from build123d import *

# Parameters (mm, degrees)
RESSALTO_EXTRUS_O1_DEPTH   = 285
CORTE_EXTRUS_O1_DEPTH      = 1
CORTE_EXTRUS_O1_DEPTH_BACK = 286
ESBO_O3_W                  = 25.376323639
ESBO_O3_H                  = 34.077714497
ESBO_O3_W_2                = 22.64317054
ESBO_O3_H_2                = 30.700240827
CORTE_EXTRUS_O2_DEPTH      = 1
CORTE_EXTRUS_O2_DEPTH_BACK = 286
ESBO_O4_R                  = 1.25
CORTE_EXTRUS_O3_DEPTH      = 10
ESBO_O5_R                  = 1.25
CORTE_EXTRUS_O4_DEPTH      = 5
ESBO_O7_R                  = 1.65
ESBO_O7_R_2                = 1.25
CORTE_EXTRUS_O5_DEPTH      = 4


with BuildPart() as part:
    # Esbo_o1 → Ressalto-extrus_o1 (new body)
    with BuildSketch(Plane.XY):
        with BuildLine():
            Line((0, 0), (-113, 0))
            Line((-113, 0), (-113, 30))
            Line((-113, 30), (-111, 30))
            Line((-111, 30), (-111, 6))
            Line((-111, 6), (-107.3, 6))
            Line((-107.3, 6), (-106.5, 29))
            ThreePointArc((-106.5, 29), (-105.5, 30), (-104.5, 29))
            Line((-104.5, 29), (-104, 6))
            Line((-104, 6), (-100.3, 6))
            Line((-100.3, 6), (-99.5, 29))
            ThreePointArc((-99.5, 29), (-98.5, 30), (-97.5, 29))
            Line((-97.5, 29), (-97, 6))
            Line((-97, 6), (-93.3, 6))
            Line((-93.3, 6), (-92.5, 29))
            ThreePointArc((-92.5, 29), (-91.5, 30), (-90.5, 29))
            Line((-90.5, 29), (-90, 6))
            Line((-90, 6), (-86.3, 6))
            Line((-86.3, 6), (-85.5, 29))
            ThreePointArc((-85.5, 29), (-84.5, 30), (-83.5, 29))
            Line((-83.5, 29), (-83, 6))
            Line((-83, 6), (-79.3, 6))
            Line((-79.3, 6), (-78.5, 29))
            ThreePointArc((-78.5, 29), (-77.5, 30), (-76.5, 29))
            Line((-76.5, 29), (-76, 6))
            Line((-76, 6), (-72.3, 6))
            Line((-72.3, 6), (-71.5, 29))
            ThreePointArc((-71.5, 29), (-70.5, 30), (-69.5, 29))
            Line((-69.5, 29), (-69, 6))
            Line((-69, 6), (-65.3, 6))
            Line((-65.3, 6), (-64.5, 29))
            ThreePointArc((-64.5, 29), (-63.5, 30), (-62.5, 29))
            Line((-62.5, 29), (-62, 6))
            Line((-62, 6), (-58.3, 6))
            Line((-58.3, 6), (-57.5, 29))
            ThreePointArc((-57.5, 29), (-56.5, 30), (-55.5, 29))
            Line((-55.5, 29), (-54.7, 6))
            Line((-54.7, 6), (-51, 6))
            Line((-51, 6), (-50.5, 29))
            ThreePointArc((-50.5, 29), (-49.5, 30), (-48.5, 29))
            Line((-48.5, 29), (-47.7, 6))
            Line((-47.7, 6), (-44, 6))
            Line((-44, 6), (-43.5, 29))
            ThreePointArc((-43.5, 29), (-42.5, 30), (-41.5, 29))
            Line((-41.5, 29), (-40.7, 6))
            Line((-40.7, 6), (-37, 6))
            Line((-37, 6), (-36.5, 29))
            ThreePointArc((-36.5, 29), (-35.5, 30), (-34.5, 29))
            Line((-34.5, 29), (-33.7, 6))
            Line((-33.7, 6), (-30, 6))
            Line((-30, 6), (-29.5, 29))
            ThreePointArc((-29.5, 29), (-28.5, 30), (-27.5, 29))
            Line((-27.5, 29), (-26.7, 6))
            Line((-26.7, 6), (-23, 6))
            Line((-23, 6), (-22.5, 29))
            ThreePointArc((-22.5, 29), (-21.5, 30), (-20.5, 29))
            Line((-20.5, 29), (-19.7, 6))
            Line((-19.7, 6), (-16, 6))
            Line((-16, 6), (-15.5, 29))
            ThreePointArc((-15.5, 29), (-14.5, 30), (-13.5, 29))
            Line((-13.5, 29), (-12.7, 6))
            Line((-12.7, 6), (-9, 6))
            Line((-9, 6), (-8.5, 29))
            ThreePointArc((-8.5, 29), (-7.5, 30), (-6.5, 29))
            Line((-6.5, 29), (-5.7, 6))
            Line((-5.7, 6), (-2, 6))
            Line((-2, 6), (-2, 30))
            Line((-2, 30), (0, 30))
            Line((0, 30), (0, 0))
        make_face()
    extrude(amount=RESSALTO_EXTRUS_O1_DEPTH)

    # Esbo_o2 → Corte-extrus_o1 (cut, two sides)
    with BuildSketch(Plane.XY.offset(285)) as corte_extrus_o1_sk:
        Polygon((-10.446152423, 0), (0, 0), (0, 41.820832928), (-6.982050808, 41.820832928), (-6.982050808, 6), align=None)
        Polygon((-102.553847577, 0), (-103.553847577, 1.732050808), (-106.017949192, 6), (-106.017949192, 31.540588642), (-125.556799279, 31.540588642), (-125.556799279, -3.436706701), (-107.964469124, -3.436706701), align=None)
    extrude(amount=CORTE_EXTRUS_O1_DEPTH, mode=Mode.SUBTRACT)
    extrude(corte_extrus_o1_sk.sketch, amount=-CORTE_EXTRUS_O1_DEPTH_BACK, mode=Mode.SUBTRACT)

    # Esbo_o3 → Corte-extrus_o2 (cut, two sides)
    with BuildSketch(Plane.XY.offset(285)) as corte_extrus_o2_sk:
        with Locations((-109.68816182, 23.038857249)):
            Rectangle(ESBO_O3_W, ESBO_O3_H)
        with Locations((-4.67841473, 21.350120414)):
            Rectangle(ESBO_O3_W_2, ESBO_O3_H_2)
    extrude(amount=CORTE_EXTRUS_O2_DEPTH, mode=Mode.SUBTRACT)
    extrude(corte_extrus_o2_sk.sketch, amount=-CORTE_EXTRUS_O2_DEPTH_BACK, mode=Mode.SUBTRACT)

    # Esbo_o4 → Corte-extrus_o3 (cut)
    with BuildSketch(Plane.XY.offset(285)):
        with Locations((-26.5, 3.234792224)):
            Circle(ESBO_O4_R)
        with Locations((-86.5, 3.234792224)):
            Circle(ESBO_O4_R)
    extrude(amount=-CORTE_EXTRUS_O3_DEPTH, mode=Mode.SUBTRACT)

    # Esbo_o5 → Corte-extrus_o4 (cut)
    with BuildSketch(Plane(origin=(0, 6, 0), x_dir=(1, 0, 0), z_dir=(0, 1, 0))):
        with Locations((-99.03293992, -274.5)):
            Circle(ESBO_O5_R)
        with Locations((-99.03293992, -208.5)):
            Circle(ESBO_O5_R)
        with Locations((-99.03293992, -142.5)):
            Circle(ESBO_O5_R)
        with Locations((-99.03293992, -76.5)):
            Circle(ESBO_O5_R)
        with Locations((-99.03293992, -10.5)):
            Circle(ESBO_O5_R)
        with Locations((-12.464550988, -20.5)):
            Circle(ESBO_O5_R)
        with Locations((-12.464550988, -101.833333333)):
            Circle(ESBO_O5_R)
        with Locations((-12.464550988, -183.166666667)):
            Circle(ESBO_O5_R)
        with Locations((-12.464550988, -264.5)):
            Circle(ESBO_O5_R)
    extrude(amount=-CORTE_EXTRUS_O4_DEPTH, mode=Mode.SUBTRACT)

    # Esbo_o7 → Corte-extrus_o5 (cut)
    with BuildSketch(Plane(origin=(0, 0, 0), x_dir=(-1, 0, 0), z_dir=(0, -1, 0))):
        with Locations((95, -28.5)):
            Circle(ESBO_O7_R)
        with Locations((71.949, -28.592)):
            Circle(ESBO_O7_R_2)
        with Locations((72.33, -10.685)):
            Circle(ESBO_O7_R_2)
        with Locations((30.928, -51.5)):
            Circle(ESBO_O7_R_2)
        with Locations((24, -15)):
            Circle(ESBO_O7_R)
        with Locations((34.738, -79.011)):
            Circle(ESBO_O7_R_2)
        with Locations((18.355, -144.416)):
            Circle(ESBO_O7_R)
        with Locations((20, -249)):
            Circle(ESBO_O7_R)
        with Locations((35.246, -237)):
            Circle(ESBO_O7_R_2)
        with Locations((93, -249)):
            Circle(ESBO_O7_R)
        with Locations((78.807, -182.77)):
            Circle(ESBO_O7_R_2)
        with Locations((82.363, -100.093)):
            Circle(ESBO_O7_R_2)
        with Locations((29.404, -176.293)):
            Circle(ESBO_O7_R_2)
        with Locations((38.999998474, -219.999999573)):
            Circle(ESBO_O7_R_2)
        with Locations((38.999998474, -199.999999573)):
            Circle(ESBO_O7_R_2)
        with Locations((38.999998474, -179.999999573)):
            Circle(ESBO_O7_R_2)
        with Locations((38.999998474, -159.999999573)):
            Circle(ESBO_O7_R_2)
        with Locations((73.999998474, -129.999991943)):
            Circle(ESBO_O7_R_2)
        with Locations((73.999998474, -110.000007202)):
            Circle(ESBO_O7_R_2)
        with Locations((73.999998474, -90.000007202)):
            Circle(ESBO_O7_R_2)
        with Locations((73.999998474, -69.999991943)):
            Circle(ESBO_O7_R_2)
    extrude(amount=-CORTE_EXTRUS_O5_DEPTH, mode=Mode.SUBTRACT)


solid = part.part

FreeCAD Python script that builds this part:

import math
import FreeCAD as App
import Part
import Sketcher

V = App.Vector
Q = App.Units.Quantity

doc = App.newDocument("Part")
body = doc.addObject("PartDesign::Body", "Body")

# Sketch on XY plane
sketch1 = body.newObject("Sketcher::SketchObject", "Sketch")
sketch1.AttachmentSupport = (doc.getObject("XY_Plane"), [""])
sketch1.MapMode = "FlatFace"
sketch1.addGeometry(Part.LineSegment(V(-113, 0, 0), V(0, 0, 0)), False)
sketch1.addGeometry(Part.LineSegment(V(0, 0, 0), V(0, 30, 0)), False)
sketch1.addGeometry(Part.LineSegment(V(0, 30, 0), V(-2, 30, 0)), False)
sketch1.addGeometry(Part.LineSegment(V(-2, 30, 0), V(-2, 6, 0)), False)
sketch1.addGeometry(Part.LineSegment(V(-2, 6, 0), V(-5.7, 6, 0)), False)
sketch1.addGeometry(Part.LineSegment(V(-5.7, 6, 0), V(-6.5, 29, 0)), False)
sketch1.addGeometry(Part.ArcOfCircle(Part.Circle(V(-7.5, 29, 0), V(0, 0, 1), 1), math.radians(0), math.radians(180)), False)
sketch1.addGeometry(Part.LineSegment(V(-8.5, 29, 0), V(-9, 6, 0)), False)
sketch1.addGeometry(Part.LineSegment(V(-9, 6, 0), V(-12.7, 6, 0)), False)
sketch1.addGeometry(Part.LineSegment(V(-12.7, 6, 0), V(-13.5, 29, 0)), False)
sketch1.addGeometry(Part.ArcOfCircle(Part.Circle(V(-14.5, 29, 0), V(0, 0, 1), 1), math.radians(0), math.radians(180)), False)
sketch1.addGeometry(Part.LineSegment(V(-15.5, 29, 0), V(-16, 6, 0)), False)
sketch1.addGeometry(Part.LineSegment(V(-16, 6, 0), V(-19.7, 6, 0)), False)
sketch1.addGeometry(Part.LineSegment(V(-19.7, 6, 0), V(-20.5, 29, 0)), False)
sketch1.addGeometry(Part.ArcOfCircle(Part.Circle(V(-21.5, 29, 0), V(0, 0, 1), 1), math.radians(0), math.radians(180)), False)
sketch1.addGeometry(Part.LineSegment(V(-22.5, 29, 0), V(-23, 6, 0)), False)
sketch1.addGeometry(Part.LineSegment(V(-23, 6, 0), V(-26.7, 6, 0)), False)
sketch1.addGeometry(Part.LineSegment(V(-26.7, 6, 0), V(-27.5, 29, 0)), False)
sketch1.addGeometry(Part.ArcOfCircle(Part.Circle(V(-28.5, 29, 0), V(0, 0, 1), 1), math.radians(0), math.radians(180)), False)
sketch1.addGeometry(Part.LineSegment(V(-29.5, 29, 0), V(-30, 6, 0)), False)
sketch1.addGeometry(Part.LineSegment(V(-30, 6, 0), V(-33.7, 6, 0)), False)
sketch1.addGeometry(Part.LineSegment(V(-33.7, 6, 0), V(-34.5, 29, 0)), False)
sketch1.addGeometry(Part.ArcOfCircle(Part.Circle(V(-35.5, 29, 0), V(0, 0, 1), 1), math.radians(0), math.radians(180)), False)
sketch1.addGeometry(Part.LineSegment(V(-36.5, 29, 0), V(-37, 6, 0)), False)
sketch1.addGeometry(Part.LineSegment(V(-37, 6, 0), V(-40.7, 6, 0)), False)
sketch1.addGeometry(Part.LineSegment(V(-40.7, 6, 0), V(-41.5, 29, 0)), False)
sketch1.addGeometry(Part.ArcOfCircle(Part.Circle(V(-42.5, 29, 0), V(0, 0, 1), 1), math.radians(0), math.radians(180)), False)
sketch1.addGeometry(Part.LineSegment(V(-43.5, 29, 0), V(-44, 6, 0)), False)
sketch1.addGeometry(Part.LineSegment(V(-44, 6, 0), V(-47.7, 6, 0)), False)
sketch1.addGeometry(Part.LineSegment(V(-47.7, 6, 0), V(-48.5, 29, 0)), False)
sketch1.addGeometry(Part.ArcOfCircle(Part.Circle(V(-49.5, 29, 0), V(0, 0, 1), 1), math.radians(0), math.radians(180)), False)
sketch1.addGeometry(Part.LineSegment(V(-50.5, 29, 0), V(-51, 6, 0)), False)
sketch1.addGeometry(Part.LineSegment(V(-51, 6, 0), V(-54.7, 6, 0)), False)
sketch1.addGeometry(Part.LineSegment(V(-54.7, 6, 0), V(-55.5, 29, 0)), False)
sketch1.addGeometry(Part.ArcOfCircle(Part.Circle(V(-56.5, 29, 0), V(0, 0, 1), 1), math.radians(0), math.radians(180)), False)
sketch1.addGeometry(Part.LineSegment(V(-57.5, 29, 0), V(-58.3, 6, 0)), False)
sketch1.addGeometry(Part.LineSegment(V(-58.3, 6, 0), V(-62, 6, 0)), False)
sketch1.addGeometry(Part.LineSegment(V(-62, 6, 0), V(-62.5, 29, 0)), False)
sketch1.addGeometry(Part.ArcOfCircle(Part.Circle(V(-63.5, 29, 0), V(0, 0, 1), 1), math.radians(0), math.radians(180)), False)
sketch1.addGeometry(Part.LineSegment(V(-64.5, 29, 0), V(-65.3, 6, 0)), False)
sketch1.addGeometry(Part.LineSegment(V(-65.3, 6, 0), V(-69, 6, 0)), False)
sketch1.addGeometry(Part.LineSegment(V(-69, 6, 0), V(-69.5, 29, 0)), False)
sketch1.addGeometry(Part.ArcOfCircle(Part.Circle(V(-70.5, 29, 0), V(0, 0, 1), 1), math.radians(0), math.radians(180)), False)
sketch1.addGeometry(Part.LineSegment(V(-71.5, 29, 0), V(-72.3, 6, 0)), False)
sketch1.addGeometry(Part.LineSegment(V(-72.3, 6, 0), V(-76, 6, 0)), False)
sketch1.addGeometry(Part.LineSegment(V(-76, 6, 0), V(-76.5, 29, 0)), False)
sketch1.addGeometry(Part.ArcOfCircle(Part.Circle(V(-77.5, 29, 0), V(0, 0, 1), 1), math.radians(0), math.radians(180)), False)
sketch1.addGeometry(Part.LineSegment(V(-78.5, 29, 0), V(-79.3, 6, 0)), False)
sketch1.addGeometry(Part.LineSegment(V(-79.3, 6, 0), V(-83, 6, 0)), False)
sketch1.addGeometry(Part.LineSegment(V(-83, 6, 0), V(-83.5, 29, 0)), False)
sketch1.addGeometry(Part.ArcOfCircle(Part.Circle(V(-84.5, 29, 0), V(0, 0, 1), 1), math.radians(0), math.radians(180)), False)
sketch1.addGeometry(Part.LineSegment(V(-85.5, 29, 0), V(-86.3, 6, 0)), False)
sketch1.addGeometry(Part.LineSegment(V(-86.3, 6, 0), V(-90, 6, 0)), False)
sketch1.addGeometry(Part.LineSegment(V(-90, 6, 0), V(-90.5, 29, 0)), False)
sketch1.addGeometry(Part.ArcOfCircle(Part.Circle(V(-91.5, 29, 0), V(0, 0, 1), 1), math.radians(0), math.radians(180)), False)
sketch1.addGeometry(Part.LineSegment(V(-92.5, 29, 0), V(-93.3, 6, 0)), False)
sketch1.addGeometry(Part.LineSegment(V(-93.3, 6, 0), V(-97, 6, 0)), False)
sketch1.addGeometry(Part.LineSegment(V(-97, 6, 0), V(-97.5, 29, 0)), False)
sketch1.addGeometry(Part.ArcOfCircle(Part.Circle(V(-98.5, 29, 0), V(0, 0, 1), 1), math.radians(0), math.radians(180)), False)
sketch1.addGeometry(Part.LineSegment(V(-99.5, 29, 0), V(-100.3, 6, 0)), False)
sketch1.addGeometry(Part.LineSegment(V(-100.3, 6, 0), V(-104, 6, 0)), False)
sketch1.addGeometry(Part.LineSegment(V(-104, 6, 0), V(-104.5, 29, 0)), False)
sketch1.addGeometry(Part.ArcOfCircle(Part.Circle(V(-105.5, 29, 0), V(0, 0, 1), 1), math.radians(0), math.radians(180)), False)
sketch1.addGeometry(Part.LineSegment(V(-106.5, 29, 0), V(-107.3, 6, 0)), False)
sketch1.addGeometry(Part.LineSegment(V(-107.3, 6, 0), V(-111, 6, 0)), False)
sketch1.addGeometry(Part.LineSegment(V(-111, 6, 0), V(-111, 30, 0)), False)
sketch1.addGeometry(Part.LineSegment(V(-111, 30, 0), V(-113, 30, 0)), False)
sketch1.addGeometry(Part.LineSegment(V(-113, 30, 0), V(-113, 0, 0)), False)
sketch1.addConstraint(Sketcher.Constraint("Coincident", 0, 2, 1, 1))
sketch1.addConstraint(Sketcher.Constraint("Coincident", 1, 2, 2, 1))
sketch1.addConstraint(Sketcher.Constraint("Coincident", 2, 2, 3, 1))
sketch1.addConstraint(Sketcher.Constraint("Coincident", 3, 2, 4, 1))
sketch1.addConstraint(Sketcher.Constraint("Coincident", 4, 2, 5, 1))
sketch1.addConstraint(Sketcher.Constraint("Coincident", 5, 2, 6, 1))
sketch1.addConstraint(Sketcher.Constraint("Coincident", 6, 2, 7, 1))
sketch1.addConstraint(Sketcher.Constraint("Coincident", 7, 2, 8, 1))
sketch1.addConstraint(Sketcher.Constraint("Coincident", 8, 2, 9, 1))
sketch1.addConstraint(Sketcher.Constraint("Coincident", 9, 2, 10, 1))
sketch1.addConstraint(Sketcher.Constraint("Coincident", 10, 2, 11, 1))
sketch1.addConstraint(Sketcher.Constraint("Coincident", 11, 2, 12, 1))
sketch1.addConstraint(Sketcher.Constraint("Coincident", 12, 2, 13, 1))
sketch1.addConstraint(Sketcher.Constraint("Coincident", 13, 2, 14, 1))
sketch1.addConstraint(Sketcher.Constraint("Coincident", 14, 2, 15, 1))
sketch1.addConstraint(Sketcher.Constraint("Coincident", 15, 2, 16, 1))
sketch1.addConstraint(Sketcher.Constraint("Coincident", 16, 2, 17, 1))
sketch1.addConstraint(Sketcher.Constraint("Coincident", 17, 2, 18, 1))
sketch1.addConstraint(Sketcher.Constraint("Coincident", 18, 2, 19, 1))
sketch1.addConstraint(Sketcher.Constraint("Coincident", 19, 2, 20, 1))
sketch1.addConstraint(Sketcher.Constraint("Coincident", 20, 2, 21, 1))
sketch1.addConstraint(Sketcher.Constraint("Coincident", 21, 2, 22, 1))
sketch1.addConstraint(Sketcher.Constraint("Coincident", 22, 2, 23, 1))
sketch1.addConstraint(Sketcher.Constraint("Coincident", 23, 2, 24, 1))
sketch1.addConstraint(Sketcher.Constraint("Coincident", 24, 2, 25, 1))
sketch1.addConstraint(Sketcher.Constraint("Coincident", 25, 2, 26, 1))
sketch1.addConstraint(Sketcher.Constraint("Coincident", 26, 2, 27, 1))
sketch1.addConstraint(Sketcher.Constraint("Coincident", 27, 2, 28, 1))
sketch1.addConstraint(Sketcher.Constraint("Coincident", 28, 2, 29, 1))
sketch1.addConstraint(Sketcher.Constraint("Coincident", 29, 2, 30, 1))
sketch1.addConstraint(Sketcher.Constraint("Coincident", 30, 2, 31, 1))
sketch1.addConstraint(Sketcher.Constraint("Coincident", 31, 2, 32, 1))
sketch1.addConstraint(Sketcher.Constraint("Coincident", 32, 2, 33, 1))
sketch1.addConstraint(Sketcher.Constraint("Coincident", 33, 2, 34, 1))
sketch1.addConstraint(Sketcher.Constraint("Coincident", 34, 2, 35, 1))
sketch1.addConstraint(Sketcher.Constraint("Coincident", 35, 2, 36, 1))
sketch1.addConstraint(Sketcher.Constraint("Coincident", 36, 2, 37, 1))
sketch1.addConstraint(Sketcher.Constraint("Coincident", 37, 2, 38, 1))
sketch1.addConstraint(Sketcher.Constraint("Coincident", 38, 2, 39, 1))
sketch1.addConstraint(Sketcher.Constraint("Coincident", 39, 2, 40, 1))
sketch1.addConstraint(Sketcher.Constraint("Coincident", 40, 2, 41, 1))
sketch1.addConstraint(Sketcher.Constraint("Coincident", 41, 2, 42, 1))
sketch1.addConstraint(Sketcher.Constraint("Coincident", 42, 2, 43, 1))
sketch1.addConstraint(Sketcher.Constraint("Coincident", 43, 2, 44, 1))
sketch1.addConstraint(Sketcher.Constraint("Coincident", 44, 2, 45, 1))
sketch1.addConstraint(Sketcher.Constraint("Coincident", 45, 2, 46, 1))
sketch1.addConstraint(Sketcher.Constraint("Coincident", 46, 2, 47, 1))
sketch1.addConstraint(Sketcher.Constraint("Coincident", 47, 2, 48, 1))
sketch1.addConstraint(Sketcher.Constraint("Coincident", 48, 2, 49, 1))
sketch1.addConstraint(Sketcher.Constraint("Coincident", 49, 2, 50, 1))
sketch1.addConstraint(Sketcher.Constraint("Coincident", 50, 2, 51, 1))
sketch1.addConstraint(Sketcher.Constraint("Coincident", 51, 2, 52, 1))
sketch1.addConstraint(Sketcher.Constraint("Coincident", 52, 2, 53, 1))
sketch1.addConstraint(Sketcher.Constraint("Coincident", 53, 2, 54, 1))
sketch1.addConstraint(Sketcher.Constraint("Coincident", 54, 2, 55, 1))
sketch1.addConstraint(Sketcher.Constraint("Coincident", 55, 2, 56, 1))
sketch1.addConstraint(Sketcher.Constraint("Coincident", 56, 2, 57, 1))
sketch1.addConstraint(Sketcher.Constraint("Coincident", 57, 2, 58, 1))
sketch1.addConstraint(Sketcher.Constraint("Coincident", 58, 2, 59, 1))
sketch1.addConstraint(Sketcher.Constraint("Coincident", 59, 2, 60, 1))
sketch1.addConstraint(Sketcher.Constraint("Coincident", 60, 2, 61, 1))
sketch1.addConstraint(Sketcher.Constraint("Coincident", 61, 2, 62, 1))
sketch1.addConstraint(Sketcher.Constraint("Coincident", 62, 2, 63, 1))
sketch1.addConstraint(Sketcher.Constraint("Coincident", 63, 2, 64, 1))
sketch1.addConstraint(Sketcher.Constraint("Coincident", 64, 2, 65, 1))
sketch1.addConstraint(Sketcher.Constraint("Coincident", 65, 2, 66, 1))
sketch1.addConstraint(Sketcher.Constraint("Coincident", 66, 2, 67, 1))
sketch1.addConstraint(Sketcher.Constraint("Coincident", 67, 2, 0, 1))
sketch1.addConstraint(Sketcher.Constraint("Horizontal", 0))
sketch1.addConstraint(Sketcher.Constraint("Vertical", 1))
sketch1.addConstraint(Sketcher.Constraint("Horizontal", 2))
sketch1.addConstraint(Sketcher.Constraint("Vertical", 3))
sketch1.addConstraint(Sketcher.Constraint("Horizontal", 4))
sketch1.addConstraint(Sketcher.Constraint("Horizontal", 8))
sketch1.addConstraint(Sketcher.Constraint("Horizontal", 12))
sketch1.addConstraint(Sketcher.Constraint("Horizontal", 16))
sketch1.addConstraint(Sketcher.Constraint("Horizontal", 20))
sketch1.addConstraint(Sketcher.Constraint("Horizontal", 24))
sketch1.addConstraint(Sketcher.Constraint("Horizontal", 28))
sketch1.addConstraint(Sketcher.Constraint("Horizontal", 32))
sketch1.addConstraint(Sketcher.Constraint("Horizontal", 36))
sketch1.addConstraint(Sketcher.Constraint("Horizontal", 40))
sketch1.addConstraint(Sketcher.Constraint("Horizontal", 44))
sketch1.addConstraint(Sketcher.Constraint("Horizontal", 48))
sketch1.addConstraint(Sketcher.Constraint("Horizontal", 52))
sketch1.addConstraint(Sketcher.Constraint("Horizontal", 56))
sketch1.addConstraint(Sketcher.Constraint("Horizontal", 60))
sketch1.addConstraint(Sketcher.Constraint("Horizontal", 64))
sketch1.addConstraint(Sketcher.Constraint("Vertical", 65))
sketch1.addConstraint(Sketcher.Constraint("Horizontal", 66))
sketch1.addConstraint(Sketcher.Constraint("Vertical", 67))
sketch1.addConstraint(Sketcher.Constraint("Coincident", 0, 2, -1, 1))
sketch1.addConstraint(Sketcher.Constraint("Equal", 6, 10))
sketch1.addConstraint(Sketcher.Constraint("Equal", 10, 14))
sketch1.addConstraint(Sketcher.Constraint("Equal", 14, 18))
sketch1.addConstraint(Sketcher.Constraint("Equal", 18, 22))
sketch1.addConstraint(Sketcher.Constraint("Equal", 22, 26))
sketch1.addConstraint(Sketcher.Constraint("Equal", 26, 30))
sketch1.addConstraint(Sketcher.Constraint("Equal", 30, 34))
sketch1.addConstraint(Sketcher.Constraint("Equal", 34, 38))
sketch1.addConstraint(Sketcher.Constraint("Equal", 38, 42))
sketch1.addConstraint(Sketcher.Constraint("Equal", 42, 46))
sketch1.addConstraint(Sketcher.Constraint("Equal", 46, 50))
sketch1.addConstraint(Sketcher.Constraint("Equal", 50, 54))
sketch1.addConstraint(Sketcher.Constraint("Equal", 54, 58))
sketch1.addConstraint(Sketcher.Constraint("Equal", 58, 62))
sketch1.addConstraint(Sketcher.Constraint("Parallel", 5, 9))
sketch1.addConstraint(Sketcher.Constraint("Parallel", 7, 11))
sketch1.addConstraint(Sketcher.Constraint("Parallel", 9, 13))
sketch1.addConstraint(Sketcher.Constraint("Parallel", 11, 15))
sketch1.addConstraint(Sketcher.Constraint("Parallel", 13, 17))
sketch1.addConstraint(Sketcher.Constraint("Parallel", 15, 19))
sketch1.addConstraint(Sketcher.Constraint("Parallel", 17, 21))
sketch1.addConstraint(Sketcher.Constraint("Parallel", 19, 23))
sketch1.addConstraint(Sketcher.Constraint("Parallel", 21, 25))
sketch1.addConstraint(Sketcher.Constraint("Parallel", 23, 27))
sketch1.addConstraint(Sketcher.Constraint("Parallel", 25, 29))
sketch1.addConstraint(Sketcher.Constraint("Parallel", 27, 31))
sketch1.addConstraint(Sketcher.Constraint("Parallel", 29, 33))
sketch1.addConstraint(Sketcher.Constraint("Parallel", 35, 39))
sketch1.addConstraint(Sketcher.Constraint("Parallel", 37, 41))
sketch1.addConstraint(Sketcher.Constraint("Parallel", 39, 43))
sketch1.addConstraint(Sketcher.Constraint("Parallel", 41, 45))
sketch1.addConstraint(Sketcher.Constraint("Parallel", 43, 47))
sketch1.addConstraint(Sketcher.Constraint("Parallel", 45, 49))
sketch1.addConstraint(Sketcher.Constraint("Parallel", 47, 51))
sketch1.addConstraint(Sketcher.Constraint("Parallel", 49, 53))
sketch1.addConstraint(Sketcher.Constraint("Parallel", 51, 55))
sketch1.addConstraint(Sketcher.Constraint("Parallel", 53, 57))
sketch1.addConstraint(Sketcher.Constraint("Parallel", 55, 59))
sketch1.addConstraint(Sketcher.Constraint("Parallel", 57, 61))
sketch1.addConstraint(Sketcher.Constraint("Parallel", 59, 63))
sketch1.addConstraint(Sketcher.Constraint("Horizontal", 6, 3, 10, 3))
sketch1.addConstraint(Sketcher.Constraint("Horizontal", 10, 3, 14, 3))
sketch1.addConstraint(Sketcher.Constraint("Horizontal", 14, 3, 18, 3))
sketch1.addConstraint(Sketcher.Constraint("Horizontal", 18, 3, 22, 3))
sketch1.addConstraint(Sketcher.Constraint("Horizontal", 22, 3, 26, 3))
sketch1.addConstraint(Sketcher.Constraint("Horizontal", 26, 3, 30, 3))
sketch1.addConstraint(Sketcher.Constraint("Horizontal", 30, 3, 34, 3))
sketch1.addConstraint(Sketcher.Constraint("Horizontal", 34, 3, 38, 3))
sketch1.addConstraint(Sketcher.Constraint("Horizontal", 38, 3, 42, 3))
sketch1.addConstraint(Sketcher.Constraint("Horizontal", 42, 3, 46, 3))
sketch1.addConstraint(Sketcher.Constraint("Horizontal", 46, 3, 50, 3))
sketch1.addConstraint(Sketcher.Constraint("Horizontal", 50, 3, 54, 3))
sketch1.addConstraint(Sketcher.Constraint("Horizontal", 54, 3, 58, 3))
sketch1.addConstraint(Sketcher.Constraint("Horizontal", 58, 3, 62, 3))
sketch1.addConstraint(Sketcher.Constraint("Horizontal", 62, 3, 5, 2))
sketch1.addConstraint(Sketcher.Constraint("Horizontal", 5, 2, 6, 2))
sketch1.addConstraint(Sketcher.Constraint("Horizontal", 4, 2, 7, 2))
sketch1.addConstraint(Sketcher.Constraint("Horizontal", 6, 2, 9, 2))
sketch1.addConstraint(Sketcher.Constraint("Horizontal", 9, 2, 10, 2))
sketch1.addConstraint(Sketcher.Constraint("Horizontal", 8, 2, 11, 2))
sketch1.addConstraint(Sketcher.Constraint("Horizontal", 10, 2, 13, 2))
sketch1.addConstraint(Sketcher.Constraint("Horizontal", 13, 2, 14, 2))
sketch1.addConstraint(Sketcher.Constraint("Horizontal", 12, 2, 15, 2))
sketch1.addConstraint(Sketcher.Constraint("Horizontal", 14, 2, 17, 2))
sketch1.addConstraint(Sketcher.Constraint("Horizontal", 17, 2, 18, 2))
sketch1.addConstraint(Sketcher.Constraint("Horizontal", 16, 2, 19, 2))
sketch1.addConstraint(Sketcher.Constraint("Horizontal", 18, 2, 21, 2))
sketch1.addConstraint(Sketcher.Constraint("Horizontal", 21, 2, 22, 2))
sketch1.addConstraint(Sketcher.Constraint("Horizontal", 20, 2, 23, 2))
sketch1.addConstraint(Sketcher.Constraint("Horizontal", 22, 2, 25, 2))
sketch1.addConstraint(Sketcher.Constraint("Horizontal", 25, 2, 26, 2))
sketch1.addConstraint(Sketcher.Constraint("Horizontal", 24, 2, 27, 2))
sketch1.addConstraint(Sketcher.Constraint("Horizontal", 26, 2, 29, 2))
sketch1.addConstraint(Sketcher.Constraint("Horizontal", 29, 2, 30, 2))
sketch1.addConstraint(Sketcher.Constraint("Horizontal", 28, 2, 31, 2))
sketch1.addConstraint(Sketcher.Constraint("Horizontal", 30, 2, 33, 2))
sketch1.addConstraint(Sketcher.Constraint("Horizontal", 33, 2, 34, 2))
sketch1.addConstraint(Sketcher.Constraint("Horizontal", 32, 2, 35, 2))
sketch1.addConstraint(Sketcher.Constraint("Horizontal", 34, 2, 37, 2))
sketch1.addConstraint(Sketcher.Constraint("Horizontal", 37, 2, 38, 2))
sketch1.addConstraint(Sketcher.Constraint("Horizontal", 36, 2, 39, 2))
sketch1.addConstraint(Sketcher.Constraint("Horizontal", 38, 2, 41, 2))
sketch1.addConstraint(Sketcher.Constraint("Horizontal", 41, 2, 42, 2))
sketch1.addConstraint(Sketcher.Constraint("Horizontal", 40, 2, 43, 2))
sketch1.addConstraint(Sketcher.Constraint("Horizontal", 42, 2, 45, 2))
sketch1.addConstraint(Sketcher.Constraint("Horizontal", 45, 2, 46, 2))
sketch1.addConstraint(Sketcher.Constraint("Horizontal", 44, 2, 47, 2))
sketch1.addConstraint(Sketcher.Constraint("Horizontal", 46, 2, 49, 2))
sketch1.addConstraint(Sketcher.Constraint("Horizontal", 49, 2, 50, 2))
sketch1.addConstraint(Sketcher.Constraint("Horizontal", 48, 2, 51, 2))
sketch1.addConstraint(Sketcher.Constraint("Horizontal", 50, 2, 53, 2))
sketch1.addConstraint(Sketcher.Constraint("Horizontal", 53, 2, 54, 2))
sketch1.addConstraint(Sketcher.Constraint("Horizontal", 52, 2, 55, 2))
sketch1.addConstraint(Sketcher.Constraint("Horizontal", 54, 2, 57, 2))
sketch1.addConstraint(Sketcher.Constraint("Horizontal", 57, 2, 58, 2))
sketch1.addConstraint(Sketcher.Constraint("Horizontal", 56, 2, 59, 2))
sketch1.addConstraint(Sketcher.Constraint("Horizontal", 58, 2, 61, 2))
sketch1.addConstraint(Sketcher.Constraint("Horizontal", 61, 2, 62, 2))
sketch1.addConstraint(Sketcher.Constraint("Horizontal", 60, 2, 63, 2))
sketch1.addConstraint(Sketcher.Constraint("Horizontal", 2, 2, 65, 2))
sketch1.addConstraint(Sketcher.Constraint("Equal", 4, 8))
sketch1.addConstraint(Sketcher.Constraint("Equal", 8, 12))
sketch1.addConstraint(Sketcher.Constraint("Equal", 12, 16))
sketch1.addConstraint(Sketcher.Constraint("Equal", 16, 20))
sketch1.addConstraint(Sketcher.Constraint("Equal", 20, 24))
sketch1.addConstraint(Sketcher.Constraint("Equal", 24, 28))
sketch1.addConstraint(Sketcher.Constraint("Equal", 28, 32))
sketch1.addConstraint(Sketcher.Constraint("Equal", 32, 36))
sketch1.addConstraint(Sketcher.Constraint("Equal", 36, 40))
sketch1.addConstraint(Sketcher.Constraint("Equal", 40, 44))
sketch1.addConstraint(Sketcher.Constraint("Equal", 44, 48))
sketch1.addConstraint(Sketcher.Constraint("Equal", 48, 52))
sketch1.addConstraint(Sketcher.Constraint("Equal", 52, 56))
sketch1.addConstraint(Sketcher.Constraint("Equal", 56, 60))
sketch1.addConstraint(Sketcher.Constraint("Equal", 60, 64))
sketch1.addConstraint(Sketcher.Constraint("Equal", 2, 66))
sketch1.addConstraint(Sketcher.Constraint("Equal", 33, 35))
sketch1.addConstraint(Sketcher.Constraint("Radius", 6, 1.0))
sketch1.addConstraint(Sketcher.Constraint("DistanceX", 0, 1, 0, 2, 113.0))
sketch1.addConstraint(Sketcher.Constraint("DistanceX", 2, 2, 2, 1, 2.0))
sketch1.addConstraint(Sketcher.Constraint("DistanceY", 1, 1, 1, 2, 30.0))
sketch1.addConstraint(Sketcher.Constraint("DistanceY", 3, 2, 3, 1, 24.0))
sketch1.addConstraint(Sketcher.Constraint("DistanceX", 4, 2, 4, 1, 3.7))
sketch1.addConstraint(Sketcher.Constraint("DistanceY", -1, 1, 6, 3, 29.0))
sketch1.addConstraint(Sketcher.Constraint("DistanceX", 7, 2, -1, 1, 9.0))
sketch1.addConstraint(Sketcher.Constraint("DistanceX", 36, 2, -1, 1, 62.0))
pad1 = body.newObject("PartDesign::Pad", "Pad")
pad1.Profile = sketch1
pad1.Length = 285

# Sketch on XY plane
sketch2 = body.newObject("Sketcher::SketchObject", "Sketch001")
sketch2.AttachmentSupport = (doc.getObject("XY_Plane"), [""])
sketch2.MapMode = "FlatFace"
sketch2.AttachmentOffset = App.Placement(V(0, 0, 285), App.Rotation())
sketch2.addGeometry(Part.LineSegment(V(-10.4, 0, 0), V(0, 0, 0)), False)
sketch2.addGeometry(Part.LineSegment(V(0, 0, 0), V(0, 41.8, 0)), False)
sketch2.addGeometry(Part.LineSegment(V(0, 41.8, 0), V(-7, 41.8, 0)), False)
sketch2.addGeometry(Part.LineSegment(V(-7, 41.8, 0), V(-7, 6, 0)), False)
sketch2.addGeometry(Part.LineSegment(V(-7, 6, 0), V(-10.4, 0, 0)), False)
sketch2.addGeometry(Part.LineSegment(V(-102.6, 0, 0), V(-103.6, 1.7, 0)), False)
sketch2.addGeometry(Part.LineSegment(V(-103.6, 1.7, 0), V(-106, 6, 0)), False)
sketch2.addGeometry(Part.LineSegment(V(-106, 6, 0), V(-106, 31.5, 0)), False)
sketch2.addGeometry(Part.LineSegment(V(-106, 31.5, 0), V(-125.6, 31.5, 0)), False)
sketch2.addGeometry(Part.LineSegment(V(-125.6, 31.5, 0), V(-125.6, -3.4, 0)), False)
sketch2.addGeometry(Part.LineSegment(V(-125.6, -3.4, 0), V(-108, -3.4, 0)), False)
sketch2.addGeometry(Part.LineSegment(V(-108, -3.4, 0), V(-102.6, 0, 0)), False)
sketch2.addConstraint(Sketcher.Constraint("Coincident", 0, 2, 1, 1))
sketch2.addConstraint(Sketcher.Constraint("Coincident", 1, 2, 2, 1))
sketch2.addConstraint(Sketcher.Constraint("Coincident", 2, 2, 3, 1))
sketch2.addConstraint(Sketcher.Constraint("Coincident", 3, 2, 4, 1))
sketch2.addConstraint(Sketcher.Constraint("Coincident", 4, 2, 0, 1))
sketch2.addConstraint(Sketcher.Constraint("Coincident", 5, 2, 6, 1))
sketch2.addConstraint(Sketcher.Constraint("Coincident", 6, 2, 7, 1))
sketch2.addConstraint(Sketcher.Constraint("Coincident", 7, 2, 8, 1))
sketch2.addConstraint(Sketcher.Constraint("Coincident", 8, 2, 9, 1))
sketch2.addConstraint(Sketcher.Constraint("Coincident", 9, 2, 10, 1))
sketch2.addConstraint(Sketcher.Constraint("Coincident", 10, 2, 11, 1))
sketch2.addConstraint(Sketcher.Constraint("Coincident", 11, 2, 5, 1))
sketch2.addConstraint(Sketcher.Constraint("Horizontal", 0))
sketch2.addConstraint(Sketcher.Constraint("Vertical", 1))
sketch2.addConstraint(Sketcher.Constraint("Horizontal", 2))
sketch2.addConstraint(Sketcher.Constraint("Vertical", 3))
sketch2.addConstraint(Sketcher.Constraint("Vertical", 7))
sketch2.addConstraint(Sketcher.Constraint("Horizontal", 8))
sketch2.addConstraint(Sketcher.Constraint("Vertical", 9))
sketch2.addConstraint(Sketcher.Constraint("Horizontal", 10))
sketch2.addConstraint(Sketcher.Constraint("Coincident", 0, 2, -1, 1))
sketch2.addConstraint(Sketcher.Constraint("PointOnObject", 11, 2, -1))
sketch2.addConstraint(Sketcher.Constraint("Parallel", 5, 6))
sketch2.addConstraint(Sketcher.Constraint("Horizontal", 3, 2, 6, 2))
sketch2.addConstraint(Sketcher.Constraint("Angle", 4, Q("-120 deg")))
sketch2.addConstraint(Sketcher.Constraint("Angle", 5, Q("120 deg")))
sketch2.addConstraint(Sketcher.Constraint("Distance", 5, 2.0))
sketch2.addConstraint(Sketcher.Constraint("DistanceY", -1, 1, 3, 2, 6.0))
sketch2.addConstraint(Sketcher.Constraint("DistanceX", 2, 2, 2, 1, 6.982051))
sketch2.addConstraint(Sketcher.Constraint("DistanceX", 8, 2, 8, 1, 19.53885))
sketch2.addConstraint(Sketcher.Constraint("DistanceX", 10, 1, 10, 2, 17.59233))
sketch2.addConstraint(Sketcher.Constraint("DistanceY", 7, 1, 7, 2, 25.540589))
sketch2.addConstraint(Sketcher.Constraint("DistanceX", 8, 2, -1, 1, 125.556799))
sketch2.addConstraint(Sketcher.Constraint("Distance", 11, 6.409819))
sketch2.addConstraint(Sketcher.Constraint("DistanceY", 1, 1, 1, 2, 41.820833))
pocket1 = body.newObject("PartDesign::Pocket", "Pocket")
pocket1.Profile = sketch2
pocket1.Type = "ThroughAll"
pocket1.Midplane = True

# Sketch on XY plane
sketch3 = body.newObject("Sketcher::SketchObject", "Sketch002")
sketch3.AttachmentSupport = (doc.getObject("XY_Plane"), [""])
sketch3.MapMode = "FlatFace"
sketch3.AttachmentOffset = App.Placement(V(0, 0, 285), App.Rotation())
sketch3.addGeometry(Part.LineSegment(V(-122, 40, 0), V(-122, 6, 0)), False)
sketch3.addGeometry(Part.LineSegment(V(-122, 6, 0), V(-97, 6, 0)), False)
sketch3.addGeometry(Part.LineSegment(V(-97, 6, 0), V(-97, 40, 0)), False)
sketch3.addGeometry(Part.LineSegment(V(-97, 40, 0), V(-122, 40, 0)), False)
sketch3.addGeometry(Part.LineSegment(V(-16, 37, 0), V(-16, 6, 0)), False)
sketch3.addGeometry(Part.LineSegment(V(-16, 6, 0), V(7, 6, 0)), False)
sketch3.addGeometry(Part.LineSegment(V(7, 6, 0), V(7, 37, 0)), False)
sketch3.addGeometry(Part.LineSegment(V(7, 37, 0), V(-16, 37, 0)), False)
sketch3.addConstraint(Sketcher.Constraint("Coincident", 0, 2, 1, 1))
sketch3.addConstraint(Sketcher.Constraint("Coincident", 1, 2, 2, 1))
sketch3.addConstraint(Sketcher.Constraint("Coincident", 2, 2, 3, 1))
sketch3.addConstraint(Sketcher.Constraint("Coincident", 3, 2, 0, 1))
sketch3.addConstraint(Sketcher.Constraint("Coincident", 4, 2, 5, 1))
sketch3.addConstraint(Sketcher.Constraint("Coincident", 5, 2, 6, 1))
sketch3.addConstraint(Sketcher.Constraint("Coincident", 6, 2, 7, 1))
sketch3.addConstraint(Sketcher.Constraint("Coincident", 7, 2, 4, 1))
sketch3.addConstraint(Sketcher.Constraint("Vertical", 0))
sketch3.addConstraint(Sketcher.Constraint("Horizontal", 1))
sketch3.addConstraint(Sketcher.Constraint("Vertical", 2))
sketch3.addConstraint(Sketcher.Constraint("Horizontal", 3))
sketch3.addConstraint(Sketcher.Constraint("Vertical", 4))
sketch3.addConstraint(Sketcher.Constraint("Horizontal", 5))
sketch3.addConstraint(Sketcher.Constraint("Vertical", 6))
sketch3.addConstraint(Sketcher.Constraint("Horizontal", 7))
sketch3.addConstraint(Sketcher.Constraint("Horizontal", 1, 2, 4, 2))
sketch3.addConstraint(Sketcher.Constraint("DistanceY", -1, 1, 0, 2, 6.0))
sketch3.addConstraint(Sketcher.Constraint("DistanceX", 1, 2, -1, 1, 97.0))
sketch3.addConstraint(Sketcher.Constraint("DistanceX", 4, 2, -1, 1, 16.0))
sketch3.addConstraint(Sketcher.Constraint("DistanceX", 5, 1, 5, 2, 22.643171))
sketch3.addConstraint(Sketcher.Constraint("DistanceY", 4, 2, 4, 1, 30.700241))
sketch3.addConstraint(Sketcher.Constraint("DistanceX", 1, 1, 1, 2, 25.376324))
sketch3.addConstraint(Sketcher.Constraint("DistanceY", 0, 2, 0, 1, 34.077714))
pocket2 = body.newObject("PartDesign::Pocket", "Pocket001")
pocket2.Profile = sketch3
pocket2.Type = "ThroughAll"
pocket2.Midplane = True

# Sketch on XY plane
sketch4 = body.newObject("Sketcher::SketchObject", "Sketch003")
sketch4.AttachmentSupport = (doc.getObject("XY_Plane"), [""])
sketch4.MapMode = "FlatFace"
sketch4.AttachmentOffset = App.Placement(V(0, 0, 285), App.Rotation())
sketch4.addGeometry(Part.Circle(V(-26.5, 3.2, 0), V(0, 0, 1), 1.2), False)
sketch4.addGeometry(Part.Circle(V(-86.5, 3.2, 0), V(0, 0, 1), 1.2), False)
sketch4.addConstraint(Sketcher.Constraint("Equal", 0, 1))
sketch4.addConstraint(Sketcher.Constraint("Horizontal", 0, 3, 1, 3))
sketch4.addConstraint(Sketcher.Constraint("Diameter", 0, 2.5))
sketch4.addConstraint(Sketcher.Constraint("DistanceX", 1, 3, 0, 3, 60.0))
sketch4.addConstraint(Sketcher.Constraint("DistanceX", 0, 3, -1, 1, 26.5))
sketch4.addConstraint(Sketcher.Constraint("DistanceY", -1, 1, 0, 3, 3.234792))
pocket3 = body.newObject("PartDesign::Pocket", "Pocket002")
pocket3.Profile = sketch4
pocket3.Length = 10

# Sketch on XZ plane
sketch5 = body.newObject("Sketcher::SketchObject", "Sketch004")
sketch5.AttachmentSupport = (doc.getObject("XZ_Plane"), [""])
sketch5.MapMode = "FlatFace"
sketch5.AttachmentOffset = App.Placement(V(0, 0, -6), App.Rotation())
sketch5.addGeometry(Part.Circle(V(-99, 274.5, 0), V(0, 0, 1), 1.2), False)
sketch5.addGeometry(Part.Circle(V(-99, 208.5, 0), V(0, 0, 1), 1.2), False)
sketch5.addGeometry(Part.Circle(V(-99, 142.5, 0), V(0, 0, 1), 1.2), False)
sketch5.addGeometry(Part.Circle(V(-99, 76.5, 0), V(0, 0, 1), 1.2), False)
sketch5.addGeometry(Part.Circle(V(-99, 10.5, 0), V(0, 0, 1), 1.2), False)
sketch5.addGeometry(Part.Circle(V(-12.5, 20.5, 0), V(0, 0, 1), 1.2), False)
sketch5.addGeometry(Part.Circle(V(-12.5, 101.8, 0), V(0, 0, 1), 1.2), False)
sketch5.addGeometry(Part.Circle(V(-12.5, 183.2, 0), V(0, 0, 1), 1.2), False)
sketch5.addGeometry(Part.Circle(V(-12.5, 264.5, 0), V(0, 0, 1), 1.2), False)
sketch5.addConstraint(Sketcher.Constraint("Equal", 0, 1))
sketch5.addConstraint(Sketcher.Constraint("Equal", 1, 2))
sketch5.addConstraint(Sketcher.Constraint("Equal", 2, 3))
sketch5.addConstraint(Sketcher.Constraint("Equal", 3, 4))
sketch5.addConstraint(Sketcher.Constraint("Equal", 4, 5))
sketch5.addConstraint(Sketcher.Constraint("Equal", 5, 6))
sketch5.addConstraint(Sketcher.Constraint("Equal", 6, 7))
sketch5.addConstraint(Sketcher.Constraint("Equal", 7, 8))
sketch5.addConstraint(Sketcher.Constraint("Vertical", 0, 3, 1, 3))
sketch5.addConstraint(Sketcher.Constraint("Vertical", 1, 3, 2, 3))
sketch5.addConstraint(Sketcher.Constraint("Vertical", 2, 3, 3, 3))
sketch5.addConstraint(Sketcher.Constraint("Vertical", 3, 3, 4, 3))
sketch5.addConstraint(Sketcher.Constraint("Vertical", 5, 3, 6, 3))
sketch5.addConstraint(Sketcher.Constraint("Vertical", 6, 3, 7, 3))
sketch5.addConstraint(Sketcher.Constraint("Vertical", 7, 3, 8, 3))
sketch5.addConstraint(Sketcher.Constraint("Diameter", 0, 2.5))
sketch5.addConstraint(Sketcher.Constraint("DistanceY", 1, 3, 0, 3, 66.0))
sketch5.addConstraint(Sketcher.Constraint("DistanceY", 2, 3, 1, 3, 66.0))
sketch5.addConstraint(Sketcher.Constraint("DistanceY", 3, 3, 2, 3, 66.0))
sketch5.addConstraint(Sketcher.Constraint("DistanceY", 4, 3, 3, 3, 66.0))
sketch5.addConstraint(Sketcher.Constraint("DistanceY", 4, 3, 5, 3, 10.0))
sketch5.addConstraint(Sketcher.Constraint("DistanceY", 8, 3, 0, 3, 10.0))
sketch5.addConstraint(Sketcher.Constraint("DistanceY", -1, 1, 0, 3, 274.5))
sketch5.addConstraint(Sketcher.Constraint("DistanceX", 0, 3, -1, 1, 99.03294))
sketch5.addConstraint(Sketcher.Constraint("DistanceX", 5, 3, -1, 1, 12.464551))
sketch5.addConstraint(Sketcher.Constraint("DistanceY", -1, 1, 6, 3, 101.833333))
sketch5.addConstraint(Sketcher.Constraint("DistanceY", -1, 1, 7, 3, 183.166667))
pocket4 = body.newObject("PartDesign::Pocket", "Pocket003")
pocket4.Profile = sketch5
pocket4.Length = 5
pocket4.Reversed = True

# Sketch on XZ plane
sketch6 = body.newObject("Sketcher::SketchObject", "Sketch005")
sketch6.AttachmentSupport = (doc.getObject("XZ_Plane"), [""])
sketch6.MapMode = "FlatFace"
sketch6.addGeometry(Part.Circle(V(-95, 28.5, 0), V(0, 0, 1), 1.6), False)
sketch6.addGeometry(Part.Circle(V(-71.9, 28.6, 0), V(0, 0, 1), 1.2), False)
sketch6.addGeometry(Part.Circle(V(-72.3, 10.7, 0), V(0, 0, 1), 1.2), False)
sketch6.addGeometry(Part.Circle(V(-30.9, 51.5, 0), V(0, 0, 1), 1.2), False)
sketch6.addGeometry(Part.Circle(V(-24, 15, 0), V(0, 0, 1), 1.6), False)
sketch6.addGeometry(Part.Circle(V(-34.7, 79, 0), V(0, 0, 1), 1.2), False)
sketch6.addGeometry(Part.Circle(V(-18.4, 144.4, 0), V(0, 0, 1), 1.6), False)
sketch6.addGeometry(Part.Circle(V(-20, 249, 0), V(0, 0, 1), 1.6), False)
sketch6.addGeometry(Part.Circle(V(-35.2, 237, 0), V(0, 0, 1), 1.2), False)
sketch6.addGeometry(Part.Circle(V(-93, 249, 0), V(0, 0, 1), 1.6), False)
sketch6.addGeometry(Part.Circle(V(-78.8, 182.8, 0), V(0, 0, 1), 1.2), False)
sketch6.addGeometry(Part.Circle(V(-82.4, 100.1, 0), V(0, 0, 1), 1.2), False)
sketch6.addGeometry(Part.Circle(V(-29.4, 176.3, 0), V(0, 0, 1), 1.2), False)
sketch6.addGeometry(Part.Circle(V(-39, 220, 0), V(0, 0, 1), 1.2), False)
sketch6.addGeometry(Part.Circle(V(-39, 200, 0), V(0, 0, 1), 1.2), False)
sketch6.addGeometry(Part.Circle(V(-39, 180, 0), V(0, 0, 1), 1.2), False)
sketch6.addGeometry(Part.Circle(V(-39, 160, 0), V(0, 0, 1), 1.2), False)
sketch6.addGeometry(Part.Circle(V(-74, 130, 0), V(0, 0, 1), 1.2), False)
sketch6.addGeometry(Part.Circle(V(-74, 110, 0), V(0, 0, 1), 1.2), False)
sketch6.addGeometry(Part.Circle(V(-74, 90, 0), V(0, 0, 1), 1.2), False)
sketch6.addGeometry(Part.Circle(V(-74, 70, 0), V(0, 0, 1), 1.2), False)
sketch6.addConstraint(Sketcher.Constraint("Equal", 1, 2))
sketch6.addConstraint(Sketcher.Constraint("Equal", 2, 3))
sketch6.addConstraint(Sketcher.Constraint("Equal", 0, 4))
sketch6.addConstraint(Sketcher.Constraint("Equal", 3, 5))
sketch6.addConstraint(Sketcher.Constraint("Equal", 4, 6))
sketch6.addConstraint(Sketcher.Constraint("Equal", 6, 7))
sketch6.addConstraint(Sketcher.Constraint("Equal", 5, 8))
sketch6.addConstraint(Sketcher.Constraint("Equal", 7, 9))
sketch6.addConstraint(Sketcher.Constraint("Equal", 8, 10))
sketch6.addConstraint(Sketcher.Constraint("Equal", 10, 11))
sketch6.addConstraint(Sketcher.Constraint("Equal", 11, 12))
sketch6.addConstraint(Sketcher.Constraint("Equal", 12, 13))
sketch6.addConstraint(Sketcher.Constraint("Equal", 13, 14))
sketch6.addConstraint(Sketcher.Constraint("Equal", 14, 15))
sketch6.addConstraint(Sketcher.Constraint("Equal", 15, 16))
sketch6.addConstraint(Sketcher.Constraint("Equal", 16, 17))
sketch6.addConstraint(Sketcher.Constraint("Equal", 17, 18))
sketch6.addConstraint(Sketcher.Constraint("Equal", 18, 19))
sketch6.addConstraint(Sketcher.Constraint("Equal", 19, 20))
sketch6.addConstraint(Sketcher.Constraint("Horizontal", 7, 3, 9, 3))
sketch6.addConstraint(Sketcher.Constraint("Vertical", 13, 3, 14, 3))
sketch6.addConstraint(Sketcher.Constraint("Vertical", 14, 3, 15, 3))
sketch6.addConstraint(Sketcher.Constraint("Vertical", 15, 3, 16, 3))
sketch6.addConstraint(Sketcher.Constraint("Vertical", 17, 3, 18, 3))
sketch6.addConstraint(Sketcher.Constraint("Vertical", 18, 3, 19, 3))
sketch6.addConstraint(Sketcher.Constraint("Vertical", 19, 3, 20, 3))
sketch6.addConstraint(Sketcher.Constraint("Diameter", 0, 3.3))
sketch6.addConstraint(Sketcher.Constraint("Diameter", 1, 2.5))
sketch6.addConstraint(Sketcher.Constraint("DistanceX", 0, 3, -1, 1, 95.0))
sketch6.addConstraint(Sketcher.Constraint("DistanceX", 4, 3, -1, 1, 24.0))
sketch6.addConstraint(Sketcher.Constraint("DistanceY", -1, 1, 4, 3, 15.0))
sketch6.addConstraint(Sketcher.Constraint("DistanceX", 7, 3, -1, 1, 20.0))
sketch6.addConstraint(Sketcher.Constraint("DistanceY", -1, 1, 7, 3, 249.0))
sketch6.addConstraint(Sketcher.Constraint("DistanceY", -1, 1, 8, 3, 237.0))
sketch6.addConstraint(Sketcher.Constraint("DistanceX", 9, 3, -1, 1, 93.0))
sketch6.addConstraint(Sketcher.Constraint("DistanceX", 13, 3, -1, 1, 38.999998))
sketch6.addConstraint(Sketcher.Constraint("DistanceY", -1, 1, 13, 3, 220.0))
sketch6.addConstraint(Sketcher.Constraint("DistanceY", -1, 1, 14, 3, 200.0))
sketch6.addConstraint(Sketcher.Constraint("DistanceY", -1, 1, 15, 3, 180.0))
sketch6.addConstraint(Sketcher.Constraint("DistanceY", -1, 1, 16, 3, 160.0))
sketch6.addConstraint(Sketcher.Constraint("DistanceX", 17, 3, -1, 1, 73.999998))
sketch6.addConstraint(Sketcher.Constraint("DistanceY", 0, 3, 3, 3, 23.0))
sketch6.addConstraint(Sketcher.Constraint("DistanceY", 19, 3, 18, 3, 20.0))
sketch6.addConstraint(Sketcher.Constraint("DistanceY", -1, 1, 0, 3, 28.5))
sketch6.addConstraint(Sketcher.Constraint("DistanceY", 11, 3, 12, 3, 76.2))
sketch6.addConstraint(Sketcher.Constraint("DistanceX", 2, 3, -1, 1, 72.33))
sketch6.addConstraint(Sketcher.Constraint("DistanceY", -1, 1, 10, 3, 182.77))
sketch6.addConstraint(Sketcher.Constraint("DistanceX", 5, 3, 3, 3, 3.81))
sketch6.addConstraint(Sketcher.Constraint("DistanceX", 1, 3, -1, 1, 71.949))
sketch6.addConstraint(Sketcher.Constraint("DistanceY", -1, 1, 1, 3, 28.592))
sketch6.addConstraint(Sketcher.Constraint("DistanceY", -1, 1, 2, 3, 10.685))
sketch6.addConstraint(Sketcher.Constraint("DistanceX", 3, 3, -1, 1, 30.928))
sketch6.addConstraint(Sketcher.Constraint("DistanceY", -1, 1, 5, 3, 79.011))
sketch6.addConstraint(Sketcher.Constraint("DistanceX", 6, 3, -1, 1, 18.355))
sketch6.addConstraint(Sketcher.Constraint("DistanceY", -1, 1, 6, 3, 144.416))
sketch6.addConstraint(Sketcher.Constraint("DistanceX", 8, 3, -1, 1, 35.246))
sketch6.addConstraint(Sketcher.Constraint("DistanceX", 10, 3, -1, 1, 78.807))
sketch6.addConstraint(Sketcher.Constraint("DistanceX", 11, 3, -1, 1, 82.363))
sketch6.addConstraint(Sketcher.Constraint("DistanceY", -1, 1, 11, 3, 100.093))
sketch6.addConstraint(Sketcher.Constraint("DistanceX", 12, 3, -1, 1, 29.404))
sketch6.addConstraint(Sketcher.Constraint("DistanceY", -1, 1, 17, 3, 129.999992))
sketch6.addConstraint(Sketcher.Constraint("DistanceY", -1, 1, 20, 3, 69.999992))
sketch6.addConstraint(Sketcher.Constraint("DistanceY", -1, 1, 18, 3, 110.000007))
pocket5 = body.newObject("PartDesign::Pocket", "Pocket004")
pocket5.Profile = sketch6
pocket5.Length = 4

doc.recompute()
